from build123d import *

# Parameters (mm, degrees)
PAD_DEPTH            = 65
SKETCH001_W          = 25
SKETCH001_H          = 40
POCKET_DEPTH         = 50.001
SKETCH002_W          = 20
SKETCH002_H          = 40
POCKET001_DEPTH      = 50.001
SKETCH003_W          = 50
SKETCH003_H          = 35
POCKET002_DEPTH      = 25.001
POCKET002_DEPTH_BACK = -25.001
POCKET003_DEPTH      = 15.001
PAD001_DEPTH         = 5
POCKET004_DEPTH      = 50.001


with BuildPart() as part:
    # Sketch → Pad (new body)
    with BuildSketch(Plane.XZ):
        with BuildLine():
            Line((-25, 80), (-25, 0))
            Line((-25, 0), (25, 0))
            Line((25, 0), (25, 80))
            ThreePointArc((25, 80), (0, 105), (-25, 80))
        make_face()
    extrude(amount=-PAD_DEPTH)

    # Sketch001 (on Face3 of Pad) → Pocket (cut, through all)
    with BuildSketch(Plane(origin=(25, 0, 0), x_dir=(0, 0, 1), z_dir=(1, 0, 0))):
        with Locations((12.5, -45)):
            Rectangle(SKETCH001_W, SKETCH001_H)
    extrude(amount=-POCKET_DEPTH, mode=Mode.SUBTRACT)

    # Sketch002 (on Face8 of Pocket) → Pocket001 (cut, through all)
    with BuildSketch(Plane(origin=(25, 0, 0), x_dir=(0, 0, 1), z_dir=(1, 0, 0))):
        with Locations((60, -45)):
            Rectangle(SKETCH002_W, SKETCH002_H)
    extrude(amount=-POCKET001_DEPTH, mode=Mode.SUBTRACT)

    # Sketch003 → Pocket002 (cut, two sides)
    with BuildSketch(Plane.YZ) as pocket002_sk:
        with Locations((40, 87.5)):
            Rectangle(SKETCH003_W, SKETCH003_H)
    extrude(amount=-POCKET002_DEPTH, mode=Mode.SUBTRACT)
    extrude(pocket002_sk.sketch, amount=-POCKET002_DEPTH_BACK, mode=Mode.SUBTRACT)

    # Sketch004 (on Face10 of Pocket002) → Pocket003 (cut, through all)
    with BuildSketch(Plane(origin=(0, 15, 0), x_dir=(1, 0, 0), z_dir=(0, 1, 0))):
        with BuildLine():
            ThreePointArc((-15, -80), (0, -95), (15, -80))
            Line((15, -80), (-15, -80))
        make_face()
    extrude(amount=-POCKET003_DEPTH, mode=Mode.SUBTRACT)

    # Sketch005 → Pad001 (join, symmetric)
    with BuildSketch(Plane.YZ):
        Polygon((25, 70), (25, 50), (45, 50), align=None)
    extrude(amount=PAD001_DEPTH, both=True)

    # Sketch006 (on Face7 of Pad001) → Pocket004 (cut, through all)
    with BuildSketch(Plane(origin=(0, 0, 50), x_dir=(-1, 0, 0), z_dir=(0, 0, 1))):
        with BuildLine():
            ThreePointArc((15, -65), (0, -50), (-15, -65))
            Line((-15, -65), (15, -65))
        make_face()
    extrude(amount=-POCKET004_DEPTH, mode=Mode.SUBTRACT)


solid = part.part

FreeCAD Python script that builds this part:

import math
import FreeCAD as App
import Part
import Sketcher
from FreeCAD import Vector


def add_polygon(sketch, points):
    """Adds a closed chain of lines whose ends are joined by coincident constraints."""
    first, n = sketch.GeometryCount, len(points)
    for a, b in zip(points, points[1:] + points[:1]):
        sketch.addGeometry(Part.LineSegment(App.Vector(*a, 0), App.Vector(*b, 0)), False)
    for i in range(n):
        sketch.addConstraint(Sketcher.Constraint("Coincident", first + i, 2, first + (i + 1) % n, 1))

doc = App.newDocument("Part")
body = doc.addObject("PartDesign::Body", "Body")

# Sketch on XZ plane
sketch1 = body.newObject("Sketcher::SketchObject", "Sketch")
sketch1.AttachmentSupport = (doc.getObject("XZ_Plane"), [""])
sketch1.MapMode = "FlatFace"
sketch1.addGeometry([
    Part.LineSegment(Vector(-25, 80, 0), Vector(-25, 0, 0)),
    Part.LineSegment(Vector(-25, 0, 0), Vector(25, 0, 0)),
    Part.LineSegment(Vector(25, 0, 0), Vector(25, 80, 0)),
    Part.ArcOfCircle(Part.Circle(Vector(0, 80, 0), Vector(0, 0, 1), 25), math.radians(0), math.radians(180)),
], False)
sketch1.addConstraint([
    Sketcher.Constraint("Coincident", 0, 2, 1, 1),
    Sketcher.Constraint("Coincident", 1, 2, 2, 1),
    Sketcher.Constraint("Tangent", 2, 2, 3, 1),
    Sketcher.Constraint("Tangent", 3, 2, 0, 1),
    Sketcher.Constraint("Vertical", 0),
    Sketcher.Constraint("Horizontal", 1),
    Sketcher.Constraint("Vertical", 2),
    Sketcher.Constraint("Symmetric", 0, 2, 1, 2, -1, 1),
    Sketcher.Constraint("Radius", 3, 25.0),
    Sketcher.Constraint("DistanceY", 0, 2, 0, 1, 80.0),
])
pad1 = body.newObject("PartDesign::Pad", "Pad")
pad1.Profile = sketch1
pad1.Length = 65
pad1.Reversed = True

# Sketch on YZ plane
sketch2 = body.newObject("Sketcher::SketchObject", "Sketch001")
sketch2.AttachmentSupport = (doc.getObject("YZ_Plane"), [""])
sketch2.MapMode = "FlatFace"
sketch2.AttachmentOffset = App.Placement(Vector(0, 0, 25), App.Rotation())
add_polygon(sketch2, [(25, 0), (65, 0), (65, 25), (25, 25)])  # lines 0-3
sketch2.addConstraint([
    Sketcher.Constraint("Horizontal", 0),
    Sketcher.Constraint("Vertical", 1),
    Sketcher.Constraint("Horizontal", 2),
    Sketcher.Constraint("Vertical", 3),
    Sketcher.Constraint("PointOnObject", 0, 2, -1),
    Sketcher.Constraint("DistanceX", 0, 1, 0, 2, 40.0),
    Sketcher.Constraint("DistanceY", 1, 1, 1, 2, 25.0),
    Sketcher.Constraint("DistanceX", -1, 1, 0, 2, 65.0),
])
pocket1 = body.newObject("PartDesign::Pocket", "Pocket")
pocket1.Profile = sketch2
pocket1.Type = "ThroughAll"

# Sketch on YZ plane
sketch3 = body.newObject("Sketcher::SketchObject", "Sketch002")
sketch3.AttachmentSupport = (doc.getObject("YZ_Plane"), [""])
sketch3.MapMode = "FlatFace"
sketch3.AttachmentOffset = App.Placement(Vector(0, 0, 25), App.Rotation())
add_polygon(sketch3, [(25, 50), (65, 50), (65, 70), (25, 70)])  # lines 0-3
sketch3.addConstraint([
    Sketcher.Constraint("Horizontal", 0),
    Sketcher.Constraint("Vertical", 1),
    Sketcher.Constraint("Horizontal", 2),
    Sketcher.Constraint("Vertical", 3),
    Sketcher.Constraint("DistanceX", 0, 1, 0, 2, 40.0),
    Sketcher.Constraint("DistanceY", 1, 1, 1, 2, 20.0),
    Sketcher.Constraint("DistanceX", -1, 1, 0, 2, 65.0),
    Sketcher.Constraint("DistanceY", -1, 1, 0, 2, 50.0),
])
pocket2 = body.newObject("PartDesign::Pocket", "Pocket001")
pocket2.Profile = sketch3
pocket2.Type = "ThroughAll"

# Sketch on YZ plane
sketch4 = body.newObject("Sketcher::SketchObject", "Sketch003")
sketch4.AttachmentSupport = (doc.getObject("YZ_Plane"), [""])
sketch4.MapMode = "FlatFace"
add_polygon(sketch4, [(15, 105), (15, 70), (65, 70), (65, 105)])  # lines 0-3
sketch4.addConstraint([
    Sketcher.Constraint("Vertical", 0),
    Sketcher.Constraint("Horizontal", 1),
    Sketcher.Constraint("Vertical", 2),
    Sketcher.Constraint("Horizontal", 3),
    Sketcher.Constraint("DistanceX", 1, 1, 1, 2, 50.0),
    Sketcher.Constraint("DistanceY", 0, 2, 0, 1, 35.0),
    Sketcher.Constraint("DistanceX", -1, 1, 0, 2, 15.0),
    Sketcher.Constraint("DistanceY", -1, 1, 0, 2, 70.0),
])
pocket3 = body.newObject("PartDesign::Pocket", "Pocket002")
pocket3.Profile = sketch4
pocket3.Type = "ThroughAll"
pocket3.Midplane = True

# Sketch on XZ plane
sketch5 = body.newObject("Sketcher::SketchObject", "Sketch004")
sketch5.AttachmentSupport = (doc.getObject("XZ_Plane"), [""])
sketch5.MapMode = "FlatFace"
sketch5.AttachmentOffset = App.Placement(Vector(0, 0, -15), App.Rotation())
sketch5.addGeometry([
    Part.ArcOfCircle(Part.Circle(Vector(0, 80, 0), Vector(0, 0, 1), 15), math.radians(0), math.radians(180)),
    Part.LineSegment(Vector(15, 80, 0), Vector(-15, 80, 0)),
], False)
sketch5.addConstraint([
    Sketcher.Constraint("Coincident", 0, 1, 1, 1),
    Sketcher.Constraint("Coincident", 1, 2, 0, 2),
    Sketcher.Constraint("Horizontal", 1),
    Sketcher.Constraint("PointOnObject", 0, 3, -2),
    Sketcher.Constraint("Radius", 0, 15.0),
    Sketcher.Constraint("DistanceY", -1, 1, 0, 3, 80.0),
    Sketcher.Constraint("DistanceY", -1, 1, 0, 1, 80.0),
])
pocket4 = body.newObject("PartDesign::Pocket", "Pocket003")
pocket4.Profile = sketch5
pocket4.Type = "ThroughAll"
pocket4.Reversed = True

# Sketch on YZ plane
sketch6 = body.newObject("Sketcher::SketchObject", "Sketch005")
sketch6.AttachmentSupport = (doc.getObject("YZ_Plane"), [""])
sketch6.MapMode = "FlatFace"
add_polygon(sketch6, [(25, 70), (25, 50), (45, 50)])  # lines 0-2
sketch6.addConstraint([
    Sketcher.Constraint("Vertical", 0),
    Sketcher.Constraint("Horizontal", 1),
    Sketcher.Constraint("Equal", 1, 0),
    Sketcher.Constraint("DistanceX", 1, 1, 1, 2, 20.0),
    Sketcher.Constraint("DistanceX", -1, 1, 0, 2, 25.0),
    Sketcher.Constraint("DistanceY", -1, 1, 0, 2, 50.0),
])
pad2 = body.newObject("PartDesign::Pad", "Pad001")
pad2.Profile = sketch6
pad2.Length = 10
pad2.Midplane = True

# Sketch on XY plane
sketch7 = body.newObject("Sketcher::SketchObject", "Sketch006")
sketch7.AttachmentSupport = (doc.getObject("XY_Plane"), [""])
sketch7.MapMode = "FlatFace"
sketch7.AttachmentOffset = App.Placement(Vector(0, 0, 50), App.Rotation())
sketch7.addGeometry([
    Part.ArcOfCircle(Part.Circle(Vector(0, 65, 0), Vector(0, 0, 1), 15), math.radians(180), math.radians(360)),
    Part.LineSegment(Vector(15, 65, 0), Vector(-15, 65, 0)),
], False)
sketch7.addConstraint([
    Sketcher.Constraint("Coincident", 0, 1, 1, 2),
    Sketcher.Constraint("Coincident", 1, 1, 0, 2),
    Sketcher.Constraint("Horizontal", 1),
    Sketcher.Constraint("PointOnObject", 0, 3, -2),
    Sketcher.Constraint("Radius", 0, 15.0),
    Sketcher.Constraint("DistanceY", -1, 1, 0, 3, 65.0),
    Sketcher.Constraint("DistanceY", -1, 1, 0, 1, 65.0),
])
pocket5 = body.newObject("PartDesign::Pocket", "Pocket004")
pocket5.Profile = sketch7
pocket5.Type = "ThroughAll"

doc.recompute()
